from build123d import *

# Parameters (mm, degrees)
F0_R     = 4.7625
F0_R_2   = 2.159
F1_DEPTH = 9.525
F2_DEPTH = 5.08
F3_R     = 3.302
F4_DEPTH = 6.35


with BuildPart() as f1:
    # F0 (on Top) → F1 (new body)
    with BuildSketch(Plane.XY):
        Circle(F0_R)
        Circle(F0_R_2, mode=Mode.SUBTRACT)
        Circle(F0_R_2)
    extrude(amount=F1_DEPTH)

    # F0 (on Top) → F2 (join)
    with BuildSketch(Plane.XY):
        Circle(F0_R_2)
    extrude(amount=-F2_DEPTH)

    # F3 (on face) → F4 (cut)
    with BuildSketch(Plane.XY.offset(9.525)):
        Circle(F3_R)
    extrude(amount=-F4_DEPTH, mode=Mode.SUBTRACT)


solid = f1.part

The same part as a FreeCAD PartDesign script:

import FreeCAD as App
import Part
import Sketcher
from FreeCAD import Vector
Q = App.Units.Quantity

doc = App.newDocument("Part")
body = doc.addObject("PartDesign::Body", "Body")

sketch1 = doc.addObject("Sketcher::SketchObject", "Sketch")
body.addObject(sketch1)
sketch1.AttachmentSupport = (doc.XY_Plane, [""])
sketch1.MapMode = "FlatFace"
sketch1.addGeometry(Part.Circle(Vector(0, 0, 0), Vector(0, 0, 1), 4.8), False)
sketch1.addConstraint(Sketcher.Constraint("Coincident", 0, 3, -1, 1))
sketch1.addConstraint(Sketcher.Constraint("Diameter", 0, Q("0.375 in")))
pad1 = doc.addObject("PartDesign::Pad", "Pad")
body.addObject(pad1)
pad1.Profile = sketch1
pad1.Length = Q("0.375 in")

sketch2 = doc.addObject("Sketcher::SketchObject", "Sketch001")
body.addObject(sketch2)
sketch2.AttachmentSupport = (doc.XY_Plane, [""])
sketch2.MapMode = "FlatFace"
sketch2.addGeometry(Part.Circle(Vector(0, 0, 0), Vector(0, 0, 1), 2.2), False)
sketch2.addConstraint(Sketcher.Constraint("Coincident", 0, 3, -1, 1))
sketch2.addConstraint(Sketcher.Constraint("Diameter", 0, Q("0.17 in")))
pad2 = doc.addObject("PartDesign::Pad", "Pad001")
body.addObject(pad2)
pad2.Profile = sketch2
pad2.Length = Q("0.2 in")
pad2.Reversed = True

sketch3 = doc.addObject("Sketcher::SketchObject", "Sketch002")
body.addObject(sketch3)
sketch3.AttachmentSupport = (doc.XY_Plane, [""])
sketch3.MapMode = "FlatFace"
sketch3.AttachmentOffset = App.Placement(Vector(0, 0, 0.375 * 25.4), App.Rotation())
sketch3.addGeometry(Part.Circle(Vector(0, 0, 0), Vector(0, 0, 1), 3.3), False)
sketch3.addConstraint(Sketcher.Constraint("Coincident", 0, 3, -1, 1))
sketch3.addConstraint(Sketcher.Constraint("Diameter", 0, Q("0.26 in")))
pocket1 = doc.addObject("PartDesign::Pocket", "Pocket")
body.addObject(pocket1)
pocket1.Profile = sketch3
pocket1.Length = Q("0.25 in")

doc.recompute()
